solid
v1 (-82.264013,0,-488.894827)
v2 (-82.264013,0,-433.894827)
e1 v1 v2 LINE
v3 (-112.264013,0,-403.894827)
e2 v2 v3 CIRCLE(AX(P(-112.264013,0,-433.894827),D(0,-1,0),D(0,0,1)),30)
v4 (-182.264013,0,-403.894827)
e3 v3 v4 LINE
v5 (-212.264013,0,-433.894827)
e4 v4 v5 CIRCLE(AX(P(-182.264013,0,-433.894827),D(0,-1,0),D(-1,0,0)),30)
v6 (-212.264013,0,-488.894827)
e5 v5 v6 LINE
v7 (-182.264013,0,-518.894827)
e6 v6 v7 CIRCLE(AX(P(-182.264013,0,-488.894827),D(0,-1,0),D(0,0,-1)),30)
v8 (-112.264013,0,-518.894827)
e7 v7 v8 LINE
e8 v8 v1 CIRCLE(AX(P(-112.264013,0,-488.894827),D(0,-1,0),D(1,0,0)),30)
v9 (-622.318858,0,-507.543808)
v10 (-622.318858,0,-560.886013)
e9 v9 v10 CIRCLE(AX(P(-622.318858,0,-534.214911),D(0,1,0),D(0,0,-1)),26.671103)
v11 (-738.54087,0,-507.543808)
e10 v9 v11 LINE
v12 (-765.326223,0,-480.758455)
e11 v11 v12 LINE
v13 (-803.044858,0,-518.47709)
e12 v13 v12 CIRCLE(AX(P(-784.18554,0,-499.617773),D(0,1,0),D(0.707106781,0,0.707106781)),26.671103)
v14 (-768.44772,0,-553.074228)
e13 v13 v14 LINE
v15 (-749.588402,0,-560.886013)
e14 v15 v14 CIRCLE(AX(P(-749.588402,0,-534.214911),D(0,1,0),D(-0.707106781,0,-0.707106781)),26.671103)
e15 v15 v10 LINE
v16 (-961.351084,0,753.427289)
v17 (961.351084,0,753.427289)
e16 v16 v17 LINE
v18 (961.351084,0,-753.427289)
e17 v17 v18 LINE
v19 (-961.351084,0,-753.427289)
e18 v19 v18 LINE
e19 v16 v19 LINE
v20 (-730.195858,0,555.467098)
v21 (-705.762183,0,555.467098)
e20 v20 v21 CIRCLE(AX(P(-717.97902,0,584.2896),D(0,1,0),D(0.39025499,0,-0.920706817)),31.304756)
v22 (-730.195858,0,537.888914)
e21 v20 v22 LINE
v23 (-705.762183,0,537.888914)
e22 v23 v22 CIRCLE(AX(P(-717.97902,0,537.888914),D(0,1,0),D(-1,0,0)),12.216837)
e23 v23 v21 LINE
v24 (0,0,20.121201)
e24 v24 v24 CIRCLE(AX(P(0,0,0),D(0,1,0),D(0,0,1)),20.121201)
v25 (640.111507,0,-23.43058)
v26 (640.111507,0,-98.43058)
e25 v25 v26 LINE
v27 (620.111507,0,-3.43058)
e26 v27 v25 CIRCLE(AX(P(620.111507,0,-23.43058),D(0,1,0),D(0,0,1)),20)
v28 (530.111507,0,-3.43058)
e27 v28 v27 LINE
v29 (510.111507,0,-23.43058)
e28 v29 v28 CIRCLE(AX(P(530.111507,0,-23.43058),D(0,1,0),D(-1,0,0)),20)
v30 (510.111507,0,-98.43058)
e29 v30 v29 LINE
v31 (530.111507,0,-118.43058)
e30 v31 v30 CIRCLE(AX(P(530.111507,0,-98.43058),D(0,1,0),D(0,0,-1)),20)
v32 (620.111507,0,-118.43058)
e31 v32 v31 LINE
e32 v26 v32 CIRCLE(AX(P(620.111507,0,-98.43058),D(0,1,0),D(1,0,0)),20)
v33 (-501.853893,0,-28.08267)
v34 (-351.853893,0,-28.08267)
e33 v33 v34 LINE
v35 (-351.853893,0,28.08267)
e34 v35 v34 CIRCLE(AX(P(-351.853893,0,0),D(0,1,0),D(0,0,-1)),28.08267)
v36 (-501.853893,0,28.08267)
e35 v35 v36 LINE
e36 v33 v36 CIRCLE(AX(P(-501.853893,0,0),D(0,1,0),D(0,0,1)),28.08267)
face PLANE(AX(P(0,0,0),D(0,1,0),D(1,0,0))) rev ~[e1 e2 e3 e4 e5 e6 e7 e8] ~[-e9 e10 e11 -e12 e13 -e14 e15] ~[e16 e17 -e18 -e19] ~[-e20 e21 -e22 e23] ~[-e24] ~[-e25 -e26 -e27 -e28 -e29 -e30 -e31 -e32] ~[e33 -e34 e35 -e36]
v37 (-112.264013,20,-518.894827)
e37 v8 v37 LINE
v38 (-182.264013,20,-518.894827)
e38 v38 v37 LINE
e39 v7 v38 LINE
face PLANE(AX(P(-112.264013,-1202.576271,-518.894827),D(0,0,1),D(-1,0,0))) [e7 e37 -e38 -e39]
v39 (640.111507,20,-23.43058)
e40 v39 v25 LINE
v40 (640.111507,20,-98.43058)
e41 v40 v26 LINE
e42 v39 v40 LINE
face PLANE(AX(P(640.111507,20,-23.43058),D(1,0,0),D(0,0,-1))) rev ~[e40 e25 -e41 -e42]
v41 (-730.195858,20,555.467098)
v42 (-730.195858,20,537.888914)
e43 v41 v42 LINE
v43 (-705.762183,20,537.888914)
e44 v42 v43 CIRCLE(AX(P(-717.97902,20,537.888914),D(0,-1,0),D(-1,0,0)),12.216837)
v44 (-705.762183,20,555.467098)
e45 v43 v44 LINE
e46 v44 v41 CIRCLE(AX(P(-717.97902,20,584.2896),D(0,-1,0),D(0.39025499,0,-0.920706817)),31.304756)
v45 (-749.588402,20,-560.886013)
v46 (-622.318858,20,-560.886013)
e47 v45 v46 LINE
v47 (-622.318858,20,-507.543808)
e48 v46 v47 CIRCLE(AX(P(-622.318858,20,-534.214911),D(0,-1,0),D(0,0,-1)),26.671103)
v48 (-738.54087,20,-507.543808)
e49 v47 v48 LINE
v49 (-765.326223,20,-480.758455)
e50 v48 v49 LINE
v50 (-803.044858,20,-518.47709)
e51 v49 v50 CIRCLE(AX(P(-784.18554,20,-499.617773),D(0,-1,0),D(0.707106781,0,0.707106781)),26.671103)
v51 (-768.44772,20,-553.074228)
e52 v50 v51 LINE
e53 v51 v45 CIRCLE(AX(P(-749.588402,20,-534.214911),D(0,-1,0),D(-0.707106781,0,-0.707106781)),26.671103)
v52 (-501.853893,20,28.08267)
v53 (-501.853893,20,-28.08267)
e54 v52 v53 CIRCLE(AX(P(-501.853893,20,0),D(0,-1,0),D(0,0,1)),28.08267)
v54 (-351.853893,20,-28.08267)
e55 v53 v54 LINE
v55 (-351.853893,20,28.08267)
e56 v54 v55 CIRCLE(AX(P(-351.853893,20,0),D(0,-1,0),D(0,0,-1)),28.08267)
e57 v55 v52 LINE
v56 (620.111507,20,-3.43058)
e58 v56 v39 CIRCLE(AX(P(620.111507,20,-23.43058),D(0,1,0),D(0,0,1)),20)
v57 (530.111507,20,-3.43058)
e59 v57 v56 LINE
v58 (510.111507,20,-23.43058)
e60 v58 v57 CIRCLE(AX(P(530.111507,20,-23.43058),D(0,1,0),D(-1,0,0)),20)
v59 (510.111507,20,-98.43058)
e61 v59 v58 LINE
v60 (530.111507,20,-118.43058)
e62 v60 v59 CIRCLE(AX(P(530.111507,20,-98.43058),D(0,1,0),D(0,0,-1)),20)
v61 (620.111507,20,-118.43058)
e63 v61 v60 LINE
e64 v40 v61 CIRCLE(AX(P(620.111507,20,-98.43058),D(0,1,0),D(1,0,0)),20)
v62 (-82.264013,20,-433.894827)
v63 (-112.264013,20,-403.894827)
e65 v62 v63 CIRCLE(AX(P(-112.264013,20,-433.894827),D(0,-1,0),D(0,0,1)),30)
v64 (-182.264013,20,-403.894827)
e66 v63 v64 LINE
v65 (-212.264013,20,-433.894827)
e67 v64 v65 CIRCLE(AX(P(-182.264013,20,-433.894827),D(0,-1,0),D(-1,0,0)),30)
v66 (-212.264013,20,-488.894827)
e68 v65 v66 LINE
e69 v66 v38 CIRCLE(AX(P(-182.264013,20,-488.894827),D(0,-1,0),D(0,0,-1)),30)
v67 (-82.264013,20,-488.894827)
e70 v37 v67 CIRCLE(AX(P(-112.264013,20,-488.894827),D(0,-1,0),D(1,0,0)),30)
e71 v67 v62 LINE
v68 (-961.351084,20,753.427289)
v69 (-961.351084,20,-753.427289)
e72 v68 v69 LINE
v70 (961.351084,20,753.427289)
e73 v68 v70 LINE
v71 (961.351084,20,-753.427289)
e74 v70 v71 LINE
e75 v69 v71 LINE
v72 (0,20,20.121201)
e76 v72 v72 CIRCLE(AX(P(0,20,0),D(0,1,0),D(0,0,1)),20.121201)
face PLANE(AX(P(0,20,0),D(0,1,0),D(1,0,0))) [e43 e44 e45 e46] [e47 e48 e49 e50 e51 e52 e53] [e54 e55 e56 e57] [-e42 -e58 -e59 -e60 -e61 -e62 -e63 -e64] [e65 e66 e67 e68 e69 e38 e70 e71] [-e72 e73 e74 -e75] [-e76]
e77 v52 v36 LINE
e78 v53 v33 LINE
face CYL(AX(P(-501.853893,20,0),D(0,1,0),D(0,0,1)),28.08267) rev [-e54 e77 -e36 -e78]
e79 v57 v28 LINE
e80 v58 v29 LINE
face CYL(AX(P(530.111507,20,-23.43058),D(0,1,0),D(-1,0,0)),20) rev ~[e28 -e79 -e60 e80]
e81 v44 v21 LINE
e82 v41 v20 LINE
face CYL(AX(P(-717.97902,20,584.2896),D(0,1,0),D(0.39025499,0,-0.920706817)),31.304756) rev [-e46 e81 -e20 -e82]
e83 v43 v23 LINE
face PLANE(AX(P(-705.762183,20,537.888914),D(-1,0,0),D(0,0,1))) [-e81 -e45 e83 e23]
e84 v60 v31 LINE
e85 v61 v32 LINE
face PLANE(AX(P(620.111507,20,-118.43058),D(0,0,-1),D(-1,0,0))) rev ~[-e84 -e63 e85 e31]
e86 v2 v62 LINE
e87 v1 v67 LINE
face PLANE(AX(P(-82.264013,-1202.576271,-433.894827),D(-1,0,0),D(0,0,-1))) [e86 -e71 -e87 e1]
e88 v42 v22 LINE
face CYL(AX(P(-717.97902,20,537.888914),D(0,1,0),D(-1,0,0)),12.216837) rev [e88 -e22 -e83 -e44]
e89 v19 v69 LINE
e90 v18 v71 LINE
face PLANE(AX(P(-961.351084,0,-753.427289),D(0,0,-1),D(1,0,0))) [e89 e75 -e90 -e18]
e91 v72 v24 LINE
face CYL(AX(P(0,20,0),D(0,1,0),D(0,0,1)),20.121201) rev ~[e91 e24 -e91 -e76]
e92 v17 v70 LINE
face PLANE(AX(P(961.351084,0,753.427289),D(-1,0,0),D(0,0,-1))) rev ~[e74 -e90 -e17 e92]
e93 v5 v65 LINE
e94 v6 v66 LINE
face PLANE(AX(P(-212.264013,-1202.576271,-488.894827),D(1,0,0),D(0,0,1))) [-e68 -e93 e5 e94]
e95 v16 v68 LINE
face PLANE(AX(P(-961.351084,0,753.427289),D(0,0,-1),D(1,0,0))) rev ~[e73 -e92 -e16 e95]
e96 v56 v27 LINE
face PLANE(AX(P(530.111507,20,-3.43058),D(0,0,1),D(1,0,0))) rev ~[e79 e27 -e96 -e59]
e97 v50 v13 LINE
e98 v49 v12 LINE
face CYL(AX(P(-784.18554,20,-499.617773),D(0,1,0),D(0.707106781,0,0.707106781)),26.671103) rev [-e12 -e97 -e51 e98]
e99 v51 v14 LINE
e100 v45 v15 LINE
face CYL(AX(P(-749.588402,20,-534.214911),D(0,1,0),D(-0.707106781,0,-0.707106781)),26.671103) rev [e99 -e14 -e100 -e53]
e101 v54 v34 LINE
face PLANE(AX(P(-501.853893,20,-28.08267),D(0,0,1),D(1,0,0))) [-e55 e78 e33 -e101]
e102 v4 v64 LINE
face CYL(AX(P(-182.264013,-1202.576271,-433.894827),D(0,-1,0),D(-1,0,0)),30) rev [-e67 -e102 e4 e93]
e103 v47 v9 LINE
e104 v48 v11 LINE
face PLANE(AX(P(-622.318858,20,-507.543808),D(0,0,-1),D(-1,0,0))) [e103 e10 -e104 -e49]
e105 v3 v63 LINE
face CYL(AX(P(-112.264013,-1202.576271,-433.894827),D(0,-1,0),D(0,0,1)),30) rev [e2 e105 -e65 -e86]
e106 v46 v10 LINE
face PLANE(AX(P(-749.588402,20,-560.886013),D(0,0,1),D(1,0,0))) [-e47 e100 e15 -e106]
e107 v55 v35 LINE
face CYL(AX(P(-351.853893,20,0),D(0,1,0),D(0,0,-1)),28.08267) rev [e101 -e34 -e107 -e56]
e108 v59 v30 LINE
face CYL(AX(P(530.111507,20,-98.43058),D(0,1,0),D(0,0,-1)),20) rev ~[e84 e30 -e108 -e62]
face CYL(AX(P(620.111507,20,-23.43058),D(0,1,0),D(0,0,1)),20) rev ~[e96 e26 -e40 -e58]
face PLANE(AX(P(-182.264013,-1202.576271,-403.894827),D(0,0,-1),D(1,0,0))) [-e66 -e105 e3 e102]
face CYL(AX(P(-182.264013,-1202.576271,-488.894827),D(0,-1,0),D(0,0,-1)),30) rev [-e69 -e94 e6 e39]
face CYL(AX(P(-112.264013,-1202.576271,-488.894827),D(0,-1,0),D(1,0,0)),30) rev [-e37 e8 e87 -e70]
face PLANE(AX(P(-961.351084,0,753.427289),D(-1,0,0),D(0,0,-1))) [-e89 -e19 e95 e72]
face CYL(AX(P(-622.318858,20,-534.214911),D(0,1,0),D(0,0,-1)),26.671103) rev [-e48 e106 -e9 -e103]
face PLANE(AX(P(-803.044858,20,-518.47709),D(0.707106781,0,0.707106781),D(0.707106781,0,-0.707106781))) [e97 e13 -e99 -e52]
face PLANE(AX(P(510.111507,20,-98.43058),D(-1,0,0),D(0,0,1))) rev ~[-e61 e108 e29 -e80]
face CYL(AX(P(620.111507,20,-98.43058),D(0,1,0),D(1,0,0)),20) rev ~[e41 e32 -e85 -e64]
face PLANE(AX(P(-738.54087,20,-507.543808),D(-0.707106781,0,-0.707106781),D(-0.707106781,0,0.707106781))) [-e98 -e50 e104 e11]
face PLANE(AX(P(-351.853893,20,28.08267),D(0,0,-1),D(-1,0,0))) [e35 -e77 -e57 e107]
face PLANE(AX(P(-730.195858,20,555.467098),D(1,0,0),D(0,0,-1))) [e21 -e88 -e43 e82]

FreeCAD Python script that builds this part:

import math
import FreeCAD as App
import Part
import Sketcher

V = App.Vector
Q = App.Units.Quantity


def add_polygon(sketch, points):
    """Adds a closed chain of lines whose ends are joined by coincident constraints."""
    first, n = sketch.GeometryCount, len(points)
    for a, b in zip(points, points[1:] + points[:1]):
        sketch.addGeometry(Part.LineSegment(App.Vector(*a, 0), App.Vector(*b, 0)), False)
    for i in range(n):
        sketch.addConstraint(Sketcher.Constraint("Coincident", first + i, 2, first + (i + 1) % n, 1))

doc = App.newDocument("Part")
params = doc.addObject("Spreadsheet::Sheet", "Params")
for row, (alias, value) in enumerate([
    ("pad1_length", "20 mm"),
    ("pocket1_length", "20 mm"),
    ("sketch3_width", "150 mm"),
    ("sketch4_radius", "20 mm"),
    ("sketch4_width", "90 mm"),
    ("sketch4_height", "75 mm"),
    ("sketch5_radius", "30 mm"),
    ("sketch5_width", "70 mm"),
    ("sketch5_height", "55 mm"),
], start=1):
    params.set(f"A{row}", alias)
    params.set(f"B{row}", "=" + value)
    params.setAlias(f"B{row}", alias)

body = doc.addObject("PartDesign::Body", "Body")

# Sketch on XZ plane
sketch1 = body.newObject("Sketcher::SketchObject", "Sketch")
sketch1.AttachmentSupport = (doc.getObject("XZ_Plane"), [""])
sketch1.MapMode = "FlatFace"
add_polygon(sketch1, [(-961.351084, -753.427289), (-961.351084, 753.427289), (961.351084, 753.427289), (961.351084, -753.427289)])  # lines 0-3
sketch1.addConstraint([
    Sketcher.Constraint("Vertical", 0),
    Sketcher.Constraint("Horizontal", 1),
    Sketcher.Constraint("Vertical", 2),
    Sketcher.Constraint("Horizontal", 3),
    Sketcher.Constraint("Symmetric", 0, 2, 2, 2, -1, 1),
    Sketcher.Constraint("DistanceX", 1, 1, 1, 2, Q("1922.702168 mm")),
    Sketcher.Constraint("DistanceY", 0, 1, 0, 2, Q("1506.854577 mm")),
])
pad1 = body.newObject("PartDesign::Pad", "Pad")
pad1.Profile = sketch1
pad1.setExpression("Length", "Params.pad1_length")
pad1.Reversed = True

# Sketch on XZ plane
sketch2 = body.newObject("Sketcher::SketchObject", "Sketch001")
sketch2.AttachmentSupport = (doc.getObject("XZ_Plane"), [""])
sketch2.MapMode = "FlatFace"
sketch2.AttachmentOffset = App.Placement(V(0, 0, -20), App.Rotation())
sketch2.addGeometry(Part.Circle(V(0, 0, 0), V(0, 0, 1), 20.121201), False)
sketch2.addConstraint([
    Sketcher.Constraint("Coincident", 0, 3, -1, 1),
    Sketcher.Constraint("Diameter", 0, Q("40.242403 mm")),
])
pocket1 = body.newObject("PartDesign::Pocket", "Pocket")
pocket1.Profile = sketch2
pocket1.setExpression("Length", "Params.pocket1_length")
pocket1.Reversed = True

# Sketch on XZ plane
sketch3 = body.newObject("Sketcher::SketchObject", "Sketch002")
sketch3.AttachmentSupport = (doc.getObject("XZ_Plane"), [""])
sketch3.MapMode = "FlatFace"
sketch3.AttachmentOffset = App.Placement(V(0, 0, -20), App.Rotation())
sketch3.addGeometry([
    Part.LineSegment(V(-351.853893, -28.08267, 0), V(-501.853893, -28.08267, 0)),
    Part.ArcOfCircle(Part.Circle(V(-501.853893, 0, 0), V(0, 0, 1), 28.08267), math.radians(90), math.radians(270)),
    Part.LineSegment(V(-501.853893, 28.08267, 0), V(-351.853893, 28.08267, 0)),
    Part.ArcOfCircle(Part.Circle(V(-351.853893, 0, 0), V(0, 0, 1), 28.08267), math.radians(-90), math.radians(90)),
], False)
sketch3.addConstraint([
    Sketcher.Constraint("Tangent", 0, 2, 1, 2),
    Sketcher.Constraint("Tangent", 1, 1, 2, 1),
    Sketcher.Constraint("Tangent", 2, 2, 3, 2),
    Sketcher.Constraint("Tangent", 3, 1, 0, 1),
    Sketcher.Constraint("Horizontal", 0),
    Sketcher.Constraint("Horizontal", 2),
    Sketcher.Constraint("PointOnObject", 1, 3, -1),
    Sketcher.Constraint("DistanceX", 0, 2, 0, 1, Q("150 mm")),
    Sketcher.Constraint("Radius", 1, Q("28.08267 mm")),
    Sketcher.Constraint("DistanceX", 1, 3, -1, 1, Q("501.853893 mm")),
])
sketch3.setExpression("Constraints[7]", "Params.sketch3_width")
pocket2 = body.newObject("PartDesign::Pocket", "Pocket001")
pocket2.Profile = sketch3
pocket2.Type = "ThroughAll"
pocket2.Reversed = True

# Sketch on XZ plane
sketch4 = body.newObject("Sketcher::SketchObject", "Sketch003")
sketch4.AttachmentSupport = (doc.getObject("XZ_Plane"), [""])
sketch4.MapMode = "FlatFace"
sketch4.AttachmentOffset = App.Placement(V(0, 0, -20), App.Rotation())
sketch4.addGeometry([
    Part.LineSegment(V(530.111507, -3.43058, 0), V(620.111507, -3.43058, 0)),  # 0
    Part.ArcOfCircle(Part.Circle(V(620.111507, -23.43058, 0), V(0, 0, 1), 20), math.radians(0), math.radians(90)),  # 1
    Part.LineSegment(V(640.111507, -23.43058, 0), V(640.111507, -98.43058, 0)),  # 2
    Part.ArcOfCircle(Part.Circle(V(620.111507, -98.43058, 0), V(0, 0, 1), 20), math.radians(-90), math.radians(0)),  # 3
    Part.LineSegment(V(620.111507, -118.43058, 0), V(530.111507, -118.43058, 0)),  # 4
    Part.ArcOfCircle(Part.Circle(V(530.111507, -98.43058, 0), V(0, 0, 1), 20), math.radians(-180), math.radians(-90)),  # 5
    Part.LineSegment(V(510.111507, -98.43058, 0), V(510.111507, -23.43058, 0)),  # 6
    Part.ArcOfCircle(Part.Circle(V(530.111507, -23.43058, 0), V(0, 0, 1), 20), math.radians(90), math.radians(180)),  # 7
], False)
sketch4.addConstraint([
    Sketcher.Constraint("Tangent", 0, 2, 1, 2),
    Sketcher.Constraint("Tangent", 1, 1, 2, 1),
    Sketcher.Constraint("Tangent", 2, 2, 3, 2),
    Sketcher.Constraint("Tangent", 3, 1, 4, 1),
    Sketcher.Constraint("Tangent", 4, 2, 5, 2),
    Sketcher.Constraint("Tangent", 5, 1, 6, 1),
    Sketcher.Constraint("Tangent", 6, 2, 7, 2),
    Sketcher.Constraint("Tangent", 7, 1, 0, 1),
    Sketcher.Constraint("Horizontal", 0),
    Sketcher.Constraint("Vertical", 2),
    Sketcher.Constraint("Horizontal", 4),
    Sketcher.Constraint("Vertical", 6),
    Sketcher.Constraint("Equal", 1, 3),
    Sketcher.Constraint("Equal", 3, 5),
    Sketcher.Constraint("Equal", 5, 7),
    Sketcher.Constraint("Radius", 1, Q("20 mm")),
    Sketcher.Constraint("DistanceX", 0, 1, 0, 2, Q("90 mm")),
    Sketcher.Constraint("DistanceY", 2, 2, 2, 1, Q("75 mm")),
    Sketcher.Constraint("DistanceY", 1, 3, -1, 1, Q("23.43058 mm")),
    Sketcher.Constraint("DistanceX", -1, 1, 1, 3, Q("620.111507 mm")),
])
sketch4.setExpression("Constraints[15]", "Params.sketch4_radius")
sketch4.setExpression("Constraints[16]", "Params.sketch4_width")
sketch4.setExpression("Constraints[17]", "Params.sketch4_height")
pocket3 = body.newObject("PartDesign::Pocket", "Pocket002")
pocket3.Profile = sketch4
pocket3.Type = "ThroughAll"
pocket3.Reversed = True

# Sketch on XZ plane
sketch5 = body.newObject("Sketcher::SketchObject", "Sketch004")
sketch5.AttachmentSupport = (doc.getObject("XZ_Plane"), [""])
sketch5.MapMode = "FlatFace"
sketch5.AttachmentOffset = App.Placement(V(0, 0, -20), App.Rotation())
sketch5.addGeometry([
    Part.LineSegment(V(-182.264013, -403.894827, 0), V(-112.264013, -403.894827, 0)),  # 0
    Part.ArcOfCircle(Part.Circle(V(-112.264013, -433.894827, 0), V(0, 0, 1), 30), math.radians(0), math.radians(90)),  # 1
    Part.LineSegment(V(-82.264013, -433.894827, 0), V(-82.264013, -488.894827, 0)),  # 2
    Part.ArcOfCircle(Part.Circle(V(-112.264013, -488.894827, 0), V(0, 0, 1), 30), math.radians(-90), math.radians(0)),  # 3
    Part.LineSegment(V(-112.264013, -518.894827, 0), V(-182.264013, -518.894827, 0)),  # 4
    Part.ArcOfCircle(Part.Circle(V(-182.264013, -488.894827, 0), V(0, 0, 1), 30), math.radians(180), math.radians(270)),  # 5
    Part.LineSegment(V(-212.264013, -488.894827, 0), V(-212.264013, -433.894827, 0)),  # 6
    Part.ArcOfCircle(Part.Circle(V(-182.264013, -433.894827, 0), V(0, 0, 1), 30), math.radians(90), math.radians(180)),  # 7
], False)
sketch5.addConstraint([
    Sketcher.Constraint("Tangent", 0, 2, 1, 2),
    Sketcher.Constraint("Tangent", 1, 1, 2, 1),
    Sketcher.Constraint("Tangent", 2, 2, 3, 2),
    Sketcher.Constraint("Tangent", 3, 1, 4, 1),
    Sketcher.Constraint("Tangent", 4, 2, 5, 2),
    Sketcher.Constraint("Tangent", 5, 1, 6, 1),
    Sketcher.Constraint("Tangent", 6, 2, 7, 2),
    Sketcher.Constraint("Tangent", 7, 1, 0, 1),
    Sketcher.Constraint("Horizontal", 0),
    Sketcher.Constraint("Vertical", 2),
    Sketcher.Constraint("Horizontal", 4),
    Sketcher.Constraint("Vertical", 6),
    Sketcher.Constraint("Equal", 1, 3),
    Sketcher.Constraint("Equal", 3, 5),
    Sketcher.Constraint("Equal", 5, 7),
    Sketcher.Constraint("Radius", 1, Q("30 mm")),
    Sketcher.Constraint("DistanceX", 0, 1, 0, 2, Q("70 mm")),
    Sketcher.Constraint("DistanceY", 2, 2, 2, 1, Q("55 mm")),
    Sketcher.Constraint("DistanceX", 1, 3, -1, 1, Q("112.264013 mm")),
    Sketcher.Constraint("DistanceY", 1, 3, -1, 1, Q("433.894827 mm")),
])
sketch5.setExpression("Constraints[15]", "Params.sketch5_radius")
sketch5.setExpression("Constraints[16]", "Params.sketch5_width")
sketch5.setExpression("Constraints[17]", "Params.sketch5_height")
pocket4 = body.newObject("PartDesign::Pocket", "Pocket003")
pocket4.Profile = sketch5
pocket4.Type = "ThroughAll"
pocket4.Midplane = True

# Sketch on XZ plane
sketch6 = body.newObject("Sketcher::SketchObject", "Sketch005")
sketch6.AttachmentSupport = (doc.getObject("XZ_Plane"), [""])
sketch6.MapMode = "FlatFace"
sketch6.AttachmentOffset = App.Placement(V(0, 0, -20), App.Rotation())
sketch6.addGeometry([
    Part.LineSegment(V(-768.44772, -553.074228, 0), V(-803.044858, -518.47709, 0)),  # 0
    Part.ArcOfCircle(Part.Circle(V(-784.18554, -499.617773, 0), V(0, 0, 1), 26.671103), math.radians(45), math.radians(225)),  # 1
    Part.LineSegment(V(-765.326223, -480.758455, 0), V(-738.54087, -507.543808, 0)),  # 2
    Part.LineSegment(V(-738.54087, -507.543808, 0), V(-622.318858, -507.543808, 0)),  # 3
    Part.ArcOfCircle(Part.Circle(V(-622.318858, -534.214911, 0), V(0, 0, 1), 26.671103), math.radians(-90), math.radians(90)),  # 4
    Part.LineSegment(V(-622.318858, -560.886013, 0), V(-749.588402, -560.886013, 0)),  # 5
    Part.ArcOfCircle(Part.Circle(V(-749.588402, -534.214911, 0), V(0, 0, 1), 26.671103), math.radians(-135), math.radians(-90)),  # 6
], False)
sketch6.addConstraint([
    Sketcher.Constraint("Tangent", 0, 2, 1, 2),
    Sketcher.Constraint("Tangent", 1, 1, 2, 1),
    Sketcher.Constraint("Coincident", 2, 2, 3, 1),
    Sketcher.Constraint("Tangent", 3, 2, 4, 2),
    Sketcher.Constraint("Tangent", 4, 1, 5, 1),
    Sketcher.Constraint("Tangent", 5, 2, 6, 2),
    Sketcher.Constraint("Tangent", 6, 1, 0, 1),
    Sketcher.Constraint("Horizontal", 3),
    Sketcher.Constraint("Horizontal", 5),
    Sketcher.Constraint("Equal", 1, 4),
    Sketcher.Constraint("Equal", 4, 6),
    Sketcher.Constraint("Parallel", 0, 2),
    Sketcher.Constraint("Angle", 0, Q("135 deg")),
    Sketcher.Constraint("Radius", 1, Q("26.671103 mm")),
    Sketcher.Constraint("DistanceX", 0, 2, 4, 3, Q("180.726 mm")),
    Sketcher.Constraint("DistanceX", 3, 1, 3, 2, Q("116.222011 mm")),
    Sketcher.Constraint("DistanceX", 1, 3, -1, 1, Q("784.18554 mm")),
    Sketcher.Constraint("DistanceY", 4, 3, -1, 1, Q("534.214911 mm")),
])
pocket5 = body.newObject("PartDesign::Pocket", "Pocket004")
pocket5.Profile = sketch6
pocket5.Type = "ThroughAll"
pocket5.Reversed = True

# Sketch on XZ plane
sketch7 = body.newObject("Sketcher::SketchObject", "Sketch006")
sketch7.AttachmentSupport = (doc.getObject("XZ_Plane"), [""])
sketch7.MapMode = "FlatFace"
sketch7.AttachmentOffset = App.Placement(V(0, 0, -20), App.Rotation())
sketch7.addGeometry([
    Part.LineSegment(V(-730.195858, 537.888914, 0), V(-730.195858, 555.467098, 0)),
    Part.ArcOfCircle(Part.Circle(V(-717.97902, 584.2896, 0), V(0, 0, 1), 31.304756), math.radians(-67.029633), math.radians(247.029633)),
    Part.LineSegment(V(-705.762183, 555.467098, 0), V(-705.762183, 537.888914, 0)),
    Part.ArcOfCircle(Part.Circle(V(-717.97902, 537.888914, 0), V(0, 0, 1), 12.216837), math.radians(-180), math.radians(0)),
], False)
sketch7.addConstraint([
    Sketcher.Constraint("Coincident", 0, 2, 1, 2),
    Sketcher.Constraint("Coincident", 1, 1, 2, 1),
    Sketcher.Constraint("Tangent", 2, 2, 3, 2),
    Sketcher.Constraint("Tangent", 3, 1, 0, 1),
    Sketcher.Constraint("Vertical", 0),
    Sketcher.Constraint("Vertical", 2),
    Sketcher.Constraint("Horizontal", 0, 2, 1, 1),
    Sketcher.Constraint("Radius", 1, Q("31.304756 mm")),
    Sketcher.Constraint("Radius", 3, Q("12.216837 mm")),
    Sketcher.Constraint("DistanceY", -1, 1, 1, 3, Q("584.2896 mm")),
    Sketcher.Constraint("DistanceY", 0, 1, 0, 2, Q("17.578184 mm")),
    Sketcher.Constraint("DistanceX", 1, 3, -1, 1, Q("717.97902 mm")),
])
pocket6 = body.newObject("PartDesign::Pocket", "Pocket005")
pocket6.Profile = sketch7
pocket6.Type = "ThroughAll"
pocket6.Reversed = True

doc.recompute()
